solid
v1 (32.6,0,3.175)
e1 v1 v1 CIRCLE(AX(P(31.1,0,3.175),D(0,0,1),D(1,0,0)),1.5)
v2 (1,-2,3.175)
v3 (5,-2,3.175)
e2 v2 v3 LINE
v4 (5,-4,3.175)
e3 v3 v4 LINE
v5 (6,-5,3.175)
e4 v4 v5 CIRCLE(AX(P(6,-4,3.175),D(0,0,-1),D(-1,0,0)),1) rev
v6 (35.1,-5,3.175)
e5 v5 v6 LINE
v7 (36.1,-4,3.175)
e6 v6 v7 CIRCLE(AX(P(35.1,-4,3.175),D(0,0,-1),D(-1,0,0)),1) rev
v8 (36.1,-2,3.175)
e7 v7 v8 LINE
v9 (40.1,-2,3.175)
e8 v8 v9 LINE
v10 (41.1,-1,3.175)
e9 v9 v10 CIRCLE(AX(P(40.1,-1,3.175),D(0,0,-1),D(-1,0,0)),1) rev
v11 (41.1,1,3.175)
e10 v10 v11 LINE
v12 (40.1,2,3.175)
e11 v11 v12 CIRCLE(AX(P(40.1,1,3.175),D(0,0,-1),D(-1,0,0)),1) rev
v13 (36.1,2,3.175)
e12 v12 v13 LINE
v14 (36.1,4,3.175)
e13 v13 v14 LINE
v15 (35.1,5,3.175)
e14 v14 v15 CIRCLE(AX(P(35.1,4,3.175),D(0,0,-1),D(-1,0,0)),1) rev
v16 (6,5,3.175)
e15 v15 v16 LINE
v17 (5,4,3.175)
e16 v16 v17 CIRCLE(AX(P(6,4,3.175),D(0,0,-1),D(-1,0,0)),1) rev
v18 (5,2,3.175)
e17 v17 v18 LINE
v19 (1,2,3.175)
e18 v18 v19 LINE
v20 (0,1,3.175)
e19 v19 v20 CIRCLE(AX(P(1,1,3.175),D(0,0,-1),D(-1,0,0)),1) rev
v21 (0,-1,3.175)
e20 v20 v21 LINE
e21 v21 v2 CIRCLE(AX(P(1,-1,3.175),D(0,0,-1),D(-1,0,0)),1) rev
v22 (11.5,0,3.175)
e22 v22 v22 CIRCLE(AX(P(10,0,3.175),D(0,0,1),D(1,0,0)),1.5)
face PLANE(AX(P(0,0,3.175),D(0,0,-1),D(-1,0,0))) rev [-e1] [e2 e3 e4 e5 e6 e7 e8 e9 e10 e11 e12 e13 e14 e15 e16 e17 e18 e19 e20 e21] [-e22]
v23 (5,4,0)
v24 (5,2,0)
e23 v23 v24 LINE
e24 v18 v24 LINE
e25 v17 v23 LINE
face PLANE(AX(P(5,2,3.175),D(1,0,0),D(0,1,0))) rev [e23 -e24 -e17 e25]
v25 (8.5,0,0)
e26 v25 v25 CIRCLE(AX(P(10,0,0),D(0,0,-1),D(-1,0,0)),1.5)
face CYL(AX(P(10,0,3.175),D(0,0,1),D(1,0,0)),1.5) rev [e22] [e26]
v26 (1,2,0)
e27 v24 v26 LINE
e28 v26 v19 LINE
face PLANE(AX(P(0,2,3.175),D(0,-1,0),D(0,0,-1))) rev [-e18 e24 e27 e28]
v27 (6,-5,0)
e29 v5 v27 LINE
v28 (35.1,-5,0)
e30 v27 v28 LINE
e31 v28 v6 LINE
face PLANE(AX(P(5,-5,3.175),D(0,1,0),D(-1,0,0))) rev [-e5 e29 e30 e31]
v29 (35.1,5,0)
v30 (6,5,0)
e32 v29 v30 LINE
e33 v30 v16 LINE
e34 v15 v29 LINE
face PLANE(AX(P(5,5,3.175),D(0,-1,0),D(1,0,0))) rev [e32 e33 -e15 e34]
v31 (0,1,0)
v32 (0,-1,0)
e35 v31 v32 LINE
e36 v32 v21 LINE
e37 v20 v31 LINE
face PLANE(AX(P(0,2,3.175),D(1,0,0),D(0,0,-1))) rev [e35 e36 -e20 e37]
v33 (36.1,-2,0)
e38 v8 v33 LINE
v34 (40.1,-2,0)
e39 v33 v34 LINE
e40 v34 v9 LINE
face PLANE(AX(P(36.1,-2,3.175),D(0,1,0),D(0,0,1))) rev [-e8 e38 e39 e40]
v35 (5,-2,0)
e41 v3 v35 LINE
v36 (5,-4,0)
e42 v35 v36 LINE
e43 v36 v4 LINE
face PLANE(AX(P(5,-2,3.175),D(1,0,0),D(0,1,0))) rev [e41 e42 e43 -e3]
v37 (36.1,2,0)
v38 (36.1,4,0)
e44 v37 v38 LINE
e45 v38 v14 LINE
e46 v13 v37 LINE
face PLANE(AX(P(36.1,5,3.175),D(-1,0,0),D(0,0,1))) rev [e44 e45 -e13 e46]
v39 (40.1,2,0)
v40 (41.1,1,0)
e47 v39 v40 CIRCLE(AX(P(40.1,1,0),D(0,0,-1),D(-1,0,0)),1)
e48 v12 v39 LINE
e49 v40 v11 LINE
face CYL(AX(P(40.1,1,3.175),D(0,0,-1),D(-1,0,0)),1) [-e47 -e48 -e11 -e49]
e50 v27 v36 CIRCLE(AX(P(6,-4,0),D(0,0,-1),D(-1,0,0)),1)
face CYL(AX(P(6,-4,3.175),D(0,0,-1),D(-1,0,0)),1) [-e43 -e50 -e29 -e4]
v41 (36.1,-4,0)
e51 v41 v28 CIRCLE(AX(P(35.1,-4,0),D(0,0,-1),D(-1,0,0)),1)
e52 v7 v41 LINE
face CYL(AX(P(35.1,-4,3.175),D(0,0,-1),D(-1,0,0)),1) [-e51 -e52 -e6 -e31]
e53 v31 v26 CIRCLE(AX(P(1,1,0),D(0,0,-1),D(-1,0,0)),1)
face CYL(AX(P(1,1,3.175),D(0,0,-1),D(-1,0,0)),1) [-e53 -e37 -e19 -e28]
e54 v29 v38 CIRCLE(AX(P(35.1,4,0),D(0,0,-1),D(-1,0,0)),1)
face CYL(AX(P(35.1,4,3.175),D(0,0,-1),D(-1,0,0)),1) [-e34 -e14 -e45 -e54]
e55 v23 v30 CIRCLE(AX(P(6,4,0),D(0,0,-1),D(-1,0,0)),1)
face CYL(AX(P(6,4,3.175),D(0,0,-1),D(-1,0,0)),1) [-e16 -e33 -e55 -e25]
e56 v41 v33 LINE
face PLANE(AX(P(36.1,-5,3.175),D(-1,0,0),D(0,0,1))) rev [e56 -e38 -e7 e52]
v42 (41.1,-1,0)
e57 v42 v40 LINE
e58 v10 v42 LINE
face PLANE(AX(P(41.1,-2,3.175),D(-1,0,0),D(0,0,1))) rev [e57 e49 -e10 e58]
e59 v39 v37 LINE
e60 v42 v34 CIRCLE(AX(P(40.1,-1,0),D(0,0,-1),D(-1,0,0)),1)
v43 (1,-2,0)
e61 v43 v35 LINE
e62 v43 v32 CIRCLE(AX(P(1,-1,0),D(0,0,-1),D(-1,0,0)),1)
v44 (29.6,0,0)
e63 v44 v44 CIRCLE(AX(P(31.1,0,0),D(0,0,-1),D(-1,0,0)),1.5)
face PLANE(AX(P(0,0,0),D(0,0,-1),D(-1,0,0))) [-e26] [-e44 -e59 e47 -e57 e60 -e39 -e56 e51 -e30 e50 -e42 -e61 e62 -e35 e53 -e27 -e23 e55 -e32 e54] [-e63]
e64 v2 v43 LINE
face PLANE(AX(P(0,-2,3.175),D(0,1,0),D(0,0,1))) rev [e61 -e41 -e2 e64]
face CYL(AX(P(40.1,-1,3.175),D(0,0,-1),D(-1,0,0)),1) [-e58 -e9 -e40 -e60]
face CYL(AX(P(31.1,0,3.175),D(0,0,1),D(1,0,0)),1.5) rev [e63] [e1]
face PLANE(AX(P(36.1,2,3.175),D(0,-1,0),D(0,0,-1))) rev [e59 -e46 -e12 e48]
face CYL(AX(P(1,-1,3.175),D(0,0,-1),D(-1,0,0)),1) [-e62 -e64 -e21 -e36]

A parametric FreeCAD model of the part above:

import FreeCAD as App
import Part
import Sketcher

V = App.Vector


def edges_at(feature, points):
    """Names of the edges that pass closest to the given points."""
    edges = feature.Shape.Edges
    near = lambda p: min(range(len(edges)), key=lambda i: edges[i].distToShape(Part.Vertex(*p))[0])
    return sorted({f"Edge{near(p) + 1}" for p in points})

doc = App.newDocument("Part")
body = doc.addObject("PartDesign::Body", "Body")

# Sketch on XY plane
sketch1 = body.newObject("Sketcher::SketchObject", "Sketch")
sketch1.AttachmentSupport = (doc.getObject("XY_Plane"), [""])
sketch1.MapMode = "FlatFace"
sketch1.addGeometry([
    Part.LineSegment(V(0, 2, 0), V(0, -2, 0)),  # 0
    Part.LineSegment(V(0, -2, 0), V(5, -2, 0)),  # 1
    Part.LineSegment(V(5, -2, 0), V(5, -5, 0)),  # 2
    Part.LineSegment(V(5, -5, 0), V(36.1, -5, 0)),  # 3
    Part.LineSegment(V(36.1, -5, 0), V(36.1, -2, 0)),  # 4
    Part.LineSegment(V(36.1, -2, 0), V(41.1, -2, 0)),  # 5
    Part.LineSegment(V(41.1, -2, 0), V(41.1, 2, 0)),  # 6
    Part.LineSegment(V(41.1, 2, 0), V(36.1, 2, 0)),  # 7
    Part.LineSegment(V(36.1, 2, 0), V(36.1, 5, 0)),  # 8
    Part.LineSegment(V(36.1, 5, 0), V(5, 5, 0)),  # 9
    Part.LineSegment(V(5, 5, 0), V(5, 2, 0)),  # 10
    Part.LineSegment(V(5, 2, 0), V(0, 2, 0)),  # 11
], False)
sketch1.addConstraint([
    Sketcher.Constraint("Coincident", 0, 2, 1, 1),
    Sketcher.Constraint("Coincident", 1, 2, 2, 1),
    Sketcher.Constraint("Coincident", 2, 2, 3, 1),
    Sketcher.Constraint("Coincident", 3, 2, 4, 1),
    Sketcher.Constraint("Coincident", 4, 2, 5, 1),
    Sketcher.Constraint("Coincident", 5, 2, 6, 1),
    Sketcher.Constraint("Coincident", 6, 2, 7, 1),
    Sketcher.Constraint("Coincident", 7, 2, 8, 1),
    Sketcher.Constraint("Coincident", 8, 2, 9, 1),
    Sketcher.Constraint("Coincident", 9, 2, 10, 1),
    Sketcher.Constraint("Coincident", 10, 2, 11, 1),
    Sketcher.Constraint("Coincident", 11, 2, 0, 1),
    Sketcher.Constraint("Vertical", 0),
    Sketcher.Constraint("Horizontal", 1),
    Sketcher.Constraint("Vertical", 2),
    Sketcher.Constraint("Horizontal", 3),
    Sketcher.Constraint("Vertical", 4),
    Sketcher.Constraint("Horizontal", 5),
    Sketcher.Constraint("Vertical", 6),
    Sketcher.Constraint("Horizontal", 7),
    Sketcher.Constraint("Vertical", 8),
    Sketcher.Constraint("Horizontal", 9),
    Sketcher.Constraint("Vertical", 10),
    Sketcher.Constraint("Horizontal", 11),
    Sketcher.Constraint("Symmetric", 0, 2, 11, 2, -1, 1),
    Sketcher.Constraint("Symmetric", 4, 2, 7, 2, -1),
    Sketcher.Constraint("Symmetric", 2, 2, 9, 2, -1),
    Sketcher.Constraint("Horizontal", 1, 2, 4, 2),
    Sketcher.Constraint("Equal", 1, 5),
    Sketcher.Constraint("DistanceX", 1, 1, 1, 2, 5.0),
    Sketcher.Constraint("DistanceY", 0, 2, 0, 1, 4.0),
    Sketcher.Constraint("DistanceY", 2, 2, 2, 1, 3.0),
    Sketcher.Constraint("DistanceX", 3, 1, 3, 2, 31.1),
])
pad1 = body.newObject("PartDesign::Pad", "Pad")
pad1.Profile = sketch1
pad1.Length = 3.175

# Sketch on XY plane
sketch2 = body.newObject("Sketcher::SketchObject", "Sketch001")
sketch2.AttachmentSupport = (doc.getObject("XY_Plane"), [""])
sketch2.MapMode = "FlatFace"
sketch2.AttachmentOffset = App.Placement(V(0, 0, 3.175), App.Rotation())
sketch2.addGeometry([
    Part.Circle(V(10, 0, 0), V(0, 0, 1), 1.5),
    Part.Circle(V(31.1, 0, 0), V(0, 0, 1), 1.5),
], False)
sketch2.addConstraint([
    Sketcher.Constraint("Equal", 0, 1),
    Sketcher.Constraint("PointOnObject", 0, 3, -1),
    Sketcher.Constraint("PointOnObject", 1, 3, -1),
    Sketcher.Constraint("Diameter", 0, 3.0),
    Sketcher.Constraint("DistanceX", -1, 1, 0, 3, 10.0),
    Sketcher.Constraint("DistanceX", -1, 1, 1, 3, 31.1),
])
doc.recompute()
hole = body.newObject("PartDesign::Hole", "Hole")
hole.Profile = sketch2
hole.ThreadType = "None"
hole.Diameter = 3
hole.DepthType = "ThroughAll"
doc.recompute()

fillet = body.newObject("PartDesign::Fillet", "Fillet")
fillet.Base = (hole, edges_at(hole, [
    (0, -2, 1.587),
    (0, 2, 1.587),
    (5, 5, 1.587),
    (36.1, 5, 1.587),
    (41.1, 2, 1.587),
    (41.1, -2, 1.587),
    (36.1, -5, 1.587),
    (5, -5, 1.587),
]))
fillet.Radius = 1

doc.recompute()
